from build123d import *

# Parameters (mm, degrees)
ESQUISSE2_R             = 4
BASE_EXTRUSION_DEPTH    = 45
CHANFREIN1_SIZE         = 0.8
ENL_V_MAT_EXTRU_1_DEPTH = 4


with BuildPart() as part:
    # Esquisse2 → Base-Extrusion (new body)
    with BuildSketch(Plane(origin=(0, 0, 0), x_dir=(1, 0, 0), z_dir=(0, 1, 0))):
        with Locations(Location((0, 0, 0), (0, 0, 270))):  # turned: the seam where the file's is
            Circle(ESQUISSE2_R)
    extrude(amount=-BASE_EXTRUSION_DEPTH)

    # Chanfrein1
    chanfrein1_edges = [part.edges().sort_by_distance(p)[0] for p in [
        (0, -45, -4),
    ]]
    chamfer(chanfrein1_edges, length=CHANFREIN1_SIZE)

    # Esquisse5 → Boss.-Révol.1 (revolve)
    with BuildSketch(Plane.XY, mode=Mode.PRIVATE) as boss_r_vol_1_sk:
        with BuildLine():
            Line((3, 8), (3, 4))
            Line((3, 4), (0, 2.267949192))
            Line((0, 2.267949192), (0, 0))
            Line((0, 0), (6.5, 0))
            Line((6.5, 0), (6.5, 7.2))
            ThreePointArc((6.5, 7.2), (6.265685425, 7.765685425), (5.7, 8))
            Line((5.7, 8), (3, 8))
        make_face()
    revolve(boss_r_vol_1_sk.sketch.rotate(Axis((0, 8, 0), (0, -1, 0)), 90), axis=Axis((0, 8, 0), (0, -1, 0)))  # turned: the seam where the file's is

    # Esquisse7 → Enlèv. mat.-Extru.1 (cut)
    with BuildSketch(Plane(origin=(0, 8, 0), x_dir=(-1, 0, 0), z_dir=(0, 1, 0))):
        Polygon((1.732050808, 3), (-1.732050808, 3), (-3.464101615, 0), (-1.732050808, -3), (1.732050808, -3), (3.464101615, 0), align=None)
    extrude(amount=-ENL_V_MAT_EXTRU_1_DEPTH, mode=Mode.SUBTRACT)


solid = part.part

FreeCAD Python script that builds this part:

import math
import FreeCAD as App
import Part
import Sketcher
from FreeCAD import Vector
Q = App.Units.Quantity


def edges_at(feature, points):
    """Names of the edges that pass closest to the given points."""
    edges = feature.Shape.Edges
    near = lambda p: min(range(len(edges)), key=lambda i: edges[i].distToShape(Part.Vertex(*p))[0])
    return sorted({f"Edge{near(p) + 1}" for p in points})

doc = App.newDocument("Part")
body = doc.addObject("PartDesign::Body", "Body")

sketch1 = body.newObject("Sketcher::SketchObject", "Sketch")
sketch1.AttachmentSupport = (doc.getObject("XZ_Plane"), [""])
sketch1.MapMode = "FlatFace"
sketch1.addGeometry(Part.Circle(Vector(0, 0, 0), Vector(0, 0, 1), 4), False)
sketch1.addConstraint(Sketcher.Constraint("Coincident", 0, 3, -1, 1))
sketch1.addConstraint(Sketcher.Constraint("Diameter", 0, Q("8 mm")))
pad1 = body.newObject("PartDesign::Pad", "Pad")
pad1.Profile = sketch1
pad1.Length = 45
doc.recompute()

chamfer = body.newObject("PartDesign::Chamfer", "Chamfer")
chamfer.Base = (pad1, edges_at(pad1, [(0, -45, -4)]))
chamfer.Size = 0.8

sketch2 = body.newObject("Sketcher::SketchObject", "Sketch001")
sketch2.AttachmentSupport = (doc.getObject("XY_Plane"), [""])
sketch2.MapMode = "FlatFace"
sketch2.addGeometry(Part.LineSegment(Vector(3, 8, 0), Vector(3, 4, 0)), False)
sketch2.addGeometry(Part.LineSegment(Vector(3, 4, 0), Vector(0, 2.3, 0)), False)
sketch2.addGeometry(Part.LineSegment(Vector(0, 2.3, 0), Vector(0, 0, 0)), False)
sketch2.addGeometry(Part.LineSegment(Vector(0, 0, 0), Vector(6.5, 0, 0)), False)
sketch2.addGeometry(Part.LineSegment(Vector(6.5, 0, 0), Vector(6.5, 7.2, 0)), False)
sketch2.addGeometry(Part.ArcOfCircle(Part.Circle(Vector(5.7, 7.2, 0), Vector(0, 0, 1), 0.8), math.radians(0), math.radians(90)), False)
sketch2.addGeometry(Part.LineSegment(Vector(5.7, 8, 0), Vector(3, 8, 0)), False)
sketch2.addConstraint(Sketcher.Constraint("Coincident", 0, 2, 1, 1))
sketch2.addConstraint(Sketcher.Constraint("Coincident", 1, 2, 2, 1))
sketch2.addConstraint(Sketcher.Constraint("Coincident", 2, 2, 3, 1))
sketch2.addConstraint(Sketcher.Constraint("Coincident", 3, 2, 4, 1))
sketch2.addConstraint(Sketcher.Constraint("Tangent", 4, 2, 5, 1))
sketch2.addConstraint(Sketcher.Constraint("Tangent", 5, 2, 6, 1))
sketch2.addConstraint(Sketcher.Constraint("Coincident", 6, 2, 0, 1))
sketch2.addConstraint(Sketcher.Constraint("Vertical", 0))
sketch2.addConstraint(Sketcher.Constraint("Vertical", 2))
sketch2.addConstraint(Sketcher.Constraint("Horizontal", 3))
sketch2.addConstraint(Sketcher.Constraint("Vertical", 4))
sketch2.addConstraint(Sketcher.Constraint("Horizontal", 6))
sketch2.addConstraint(Sketcher.Constraint("Coincident", 2, 2, -1, 1))
sketch2.addConstraint(Sketcher.Constraint("Radius", 5, Q("0.8 mm")))
sketch2.addConstraint(Sketcher.Constraint("DistanceY", 0, 2, 0, 1, Q("4 mm")))
sketch2.addConstraint(Sketcher.Constraint("Angle", 1, Q("-150 deg")))
sketch2.addConstraint(Sketcher.Constraint("DistanceX", 3, 1, 3, 2, Q("6.5 mm")))
sketch2.addConstraint(Sketcher.Constraint("DistanceX", 6, 2, 6, 1, Q("2.7 mm")))
sketch2.addConstraint(Sketcher.Constraint("DistanceY", 4, 1, 4, 2, Q("7.2 mm")))
revolution = body.newObject("PartDesign::Revolution", "Revolution")
revolution.Profile = sketch2
revolution.ReferenceAxis = (sketch2, ["V_Axis"])
revolution.Angle = 360

sketch3 = body.newObject("Sketcher::SketchObject", "Sketch002")
sketch3.AttachmentSupport = (doc.getObject("XZ_Plane"), [""])
sketch3.MapMode = "FlatFace"
sketch3.AttachmentOffset = App.Placement(Vector(0, 0, -8), App.Rotation())
sketch3.addGeometry(Part.LineSegment(Vector(-1.7, 3, 0), Vector(1.7, 3, 0)), False)
sketch3.addGeometry(Part.LineSegment(Vector(1.7, 3, 0), Vector(3.5, 0, 0)), False)
sketch3.addGeometry(Part.LineSegment(Vector(3.5, 0, 0), Vector(1.7, -3, 0)), False)
sketch3.addGeometry(Part.LineSegment(Vector(1.7, -3, 0), Vector(-1.7, -3, 0)), False)
sketch3.addGeometry(Part.LineSegment(Vector(-1.7, -3, 0), Vector(-3.5, 0, 0)), False)
sketch3.addGeometry(Part.LineSegment(Vector(-3.5, 0, 0), Vector(-1.7, 3, 0)), False)
sketch3.addConstraint(Sketcher.Constraint("Coincident", 0, 2, 1, 1))
sketch3.addConstraint(Sketcher.Constraint("Coincident", 1, 2, 2, 1))
sketch3.addConstraint(Sketcher.Constraint("Coincident", 2, 2, 3, 1))
sketch3.addConstraint(Sketcher.Constraint("Coincident", 3, 2, 4, 1))
sketch3.addConstraint(Sketcher.Constraint("Coincident", 4, 2, 5, 1))
sketch3.addConstraint(Sketcher.Constraint("Coincident", 5, 2, 0, 1))
sketch3.addConstraint(Sketcher.Constraint("Horizontal", 0))
sketch3.addConstraint(Sketcher.Constraint("Horizontal", 3))
sketch3.addConstraint(Sketcher.Constraint("Symmetric", 0, 2, 3, 2, -1, 1))
sketch3.addConstraint(Sketcher.Constraint("Symmetric", 1, 2, 4, 2, -1, 1))
sketch3.addConstraint(Sketcher.Constraint("PointOnObject", 1, 2, -1))
sketch3.addConstraint(Sketcher.Constraint("Parallel", 2, 5))
sketch3.addConstraint(Sketcher.Constraint("Vertical", 0, 2, 2, 2))
sketch3.addConstraint(Sketcher.Constraint("Angle", 1, Q("-60 deg")))
sketch3.addConstraint(Sketcher.Constraint("DistanceY", -1, 1, 0, 2, Q("3 mm")))
sketch3.addConstraint(Sketcher.Constraint("DistanceX", 0, 1, 0, 2, Q("3.464102 mm")))
pocket1 = body.newObject("PartDesign::Pocket", "Pocket")
pocket1.Profile = sketch3
pocket1.Length = 4
pocket1.Reversed = True

doc.recompute()
